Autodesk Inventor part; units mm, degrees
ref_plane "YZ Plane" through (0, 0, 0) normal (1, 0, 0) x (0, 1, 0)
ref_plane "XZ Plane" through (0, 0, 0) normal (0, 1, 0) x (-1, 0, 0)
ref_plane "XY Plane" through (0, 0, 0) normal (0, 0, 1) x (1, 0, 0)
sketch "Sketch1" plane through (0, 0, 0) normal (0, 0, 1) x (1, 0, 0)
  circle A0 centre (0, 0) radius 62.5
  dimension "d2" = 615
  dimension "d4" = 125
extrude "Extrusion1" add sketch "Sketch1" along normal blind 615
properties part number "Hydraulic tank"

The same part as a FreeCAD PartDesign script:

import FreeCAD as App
import Part
import Sketcher

doc = App.newDocument("Part")
body = doc.addObject("PartDesign::Body", "Body")

# Sketch on XY plane
sketch1 = body.newObject("Sketcher::SketchObject", "Sketch")
sketch1.AttachmentSupport = (doc.getObject("XY_Plane"), [""])
sketch1.MapMode = "FlatFace"
sketch1.addGeometry(Part.Circle(App.Vector(0, 0, 0), App.Vector(0, 0, 1), 62.5), False)
sketch1.addConstraint([
    Sketcher.Constraint("Coincident", 0, 3, -1, 1),
    Sketcher.Constraint("Diameter", 0, 125.0),
])
pad1 = body.newObject("PartDesign::Pad", "Pad")
pad1.Profile = sketch1
pad1.Length = 615

doc.recompute()
